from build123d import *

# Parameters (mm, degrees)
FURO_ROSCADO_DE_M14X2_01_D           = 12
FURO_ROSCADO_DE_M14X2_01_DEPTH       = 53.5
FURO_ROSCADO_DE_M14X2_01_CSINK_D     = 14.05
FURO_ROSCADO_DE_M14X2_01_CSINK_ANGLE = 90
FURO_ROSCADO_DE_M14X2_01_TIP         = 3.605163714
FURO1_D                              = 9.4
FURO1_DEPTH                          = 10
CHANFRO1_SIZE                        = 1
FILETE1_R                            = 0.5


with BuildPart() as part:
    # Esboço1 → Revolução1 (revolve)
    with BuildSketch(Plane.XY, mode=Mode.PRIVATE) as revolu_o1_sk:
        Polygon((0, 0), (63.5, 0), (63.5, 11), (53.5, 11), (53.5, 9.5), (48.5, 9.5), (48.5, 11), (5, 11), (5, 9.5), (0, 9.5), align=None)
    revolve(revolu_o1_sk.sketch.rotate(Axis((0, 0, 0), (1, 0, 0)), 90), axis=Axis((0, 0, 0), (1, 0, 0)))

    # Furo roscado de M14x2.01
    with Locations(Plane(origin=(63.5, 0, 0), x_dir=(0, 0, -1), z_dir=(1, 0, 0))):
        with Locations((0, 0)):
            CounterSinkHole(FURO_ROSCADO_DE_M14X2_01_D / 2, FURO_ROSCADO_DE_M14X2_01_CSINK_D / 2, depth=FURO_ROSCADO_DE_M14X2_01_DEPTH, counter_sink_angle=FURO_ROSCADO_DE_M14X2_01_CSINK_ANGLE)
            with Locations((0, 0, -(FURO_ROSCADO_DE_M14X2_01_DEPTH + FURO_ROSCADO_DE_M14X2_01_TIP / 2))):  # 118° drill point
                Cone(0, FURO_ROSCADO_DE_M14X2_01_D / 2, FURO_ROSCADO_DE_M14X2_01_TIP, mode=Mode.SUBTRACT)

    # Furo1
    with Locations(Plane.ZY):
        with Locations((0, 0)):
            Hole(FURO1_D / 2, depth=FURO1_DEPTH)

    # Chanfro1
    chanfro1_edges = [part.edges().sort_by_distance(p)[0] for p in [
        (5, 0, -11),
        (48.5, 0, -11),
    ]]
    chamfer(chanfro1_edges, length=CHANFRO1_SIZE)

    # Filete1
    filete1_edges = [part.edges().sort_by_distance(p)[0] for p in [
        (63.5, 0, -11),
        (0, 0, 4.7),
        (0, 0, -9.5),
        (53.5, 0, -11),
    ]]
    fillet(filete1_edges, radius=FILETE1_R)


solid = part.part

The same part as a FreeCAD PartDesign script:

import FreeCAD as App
import Part
import Sketcher
from FreeCAD import Vector
Q = App.Units.Quantity


def edges_at(feature, points):
    """Names of the edges that pass closest to the given points."""
    edges = feature.Shape.Edges
    near = lambda p: min(range(len(edges)), key=lambda i: edges[i].distToShape(Part.Vertex(*p))[0])
    return sorted({f"Edge{near(p) + 1}" for p in points})

doc = App.newDocument("Part")
body = doc.addObject("PartDesign::Body", "Body")

sketch1 = body.newObject("Sketcher::SketchObject", "Sketch")
sketch1.AttachmentSupport = (doc.getObject("XY_Plane"), [""])
sketch1.MapMode = "FlatFace"
sketch1.addGeometry([
    Part.LineSegment(Vector(0, 0, 0), Vector(63.5, 0, 0)),
    Part.LineSegment(Vector(63.5, 0, 0), Vector(63.5, 11, 0)),
    Part.LineSegment(Vector(63.5, 11, 0), Vector(53.5, 11, 0)),
    Part.LineSegment(Vector(53.5, 11, 0), Vector(53.5, 9.5, 0)),
    Part.LineSegment(Vector(53.5, 9.5, 0), Vector(48.5, 9.5, 0)),
    Part.LineSegment(Vector(48.5, 9.5, 0), Vector(48.5, 11, 0)),
    Part.LineSegment(Vector(48.5, 11, 0), Vector(5, 11, 0)),
    Part.LineSegment(Vector(5, 11, 0), Vector(5, 9.5, 0)),
    Part.LineSegment(Vector(5, 9.5, 0), Vector(0, 9.5, 0)),
    Part.LineSegment(Vector(0, 9.5, 0), Vector(0, 0, 0)),
], False)
sketch1.addConstraint([
    Sketcher.Constraint("Coincident", 0, 2, 1, 1),
    Sketcher.Constraint("Coincident", 1, 2, 2, 1),
    Sketcher.Constraint("Coincident", 2, 2, 3, 1),
    Sketcher.Constraint("Coincident", 3, 2, 4, 1),
    Sketcher.Constraint("Coincident", 4, 2, 5, 1),
    Sketcher.Constraint("Coincident", 5, 2, 6, 1),
    Sketcher.Constraint("Coincident", 6, 2, 7, 1),
    Sketcher.Constraint("Coincident", 7, 2, 8, 1),
    Sketcher.Constraint("Coincident", 8, 2, 9, 1),
    Sketcher.Constraint("Coincident", 9, 2, 0, 1),
    Sketcher.Constraint("Horizontal", 0),
    Sketcher.Constraint("Vertical", 1),
    Sketcher.Constraint("Horizontal", 2),
    Sketcher.Constraint("Vertical", 3),
    Sketcher.Constraint("Horizontal", 4),
    Sketcher.Constraint("Vertical", 5),
    Sketcher.Constraint("Horizontal", 6),
    Sketcher.Constraint("Vertical", 7),
    Sketcher.Constraint("Horizontal", 8),
    Sketcher.Constraint("Vertical", 9),
    Sketcher.Constraint("Coincident", 9, 2, -1, 1),
    Sketcher.Constraint("Horizontal", 2, 2, 5, 2),
    Sketcher.Constraint("Horizontal", 4, 2, 7, 2),
    Sketcher.Constraint("Equal", 4, 8),
    Sketcher.Constraint("DistanceX", 2, 2, 2, 1, Q("10 mm")),
    Sketcher.Constraint("DistanceX", 4, 2, 4, 1, Q("5 mm")),
    Sketcher.Constraint("DistanceY", 1, 1, 1, 2, Q("11 mm")),
    Sketcher.Constraint("DistanceX", 0, 1, 0, 2, Q("63.5 mm")),
    Sketcher.Constraint("DistanceY", 3, 2, 3, 1, Q("1.5 mm")),
])
revolution = body.newObject("PartDesign::Revolution", "Revolution")
revolution.Profile = sketch1
revolution.ReferenceAxis = (sketch1, ["H_Axis"])
revolution.Angle = 360

sketch2 = body.newObject("Sketcher::SketchObject", "Sketch001")
sketch2.AttachmentSupport = (doc.getObject("YZ_Plane"), [""])
sketch2.MapMode = "FlatFace"
sketch2.AttachmentOffset = App.Placement(Vector(0, 0, 63.5), App.Rotation())
sketch2.addGeometry(Part.Circle(Vector(0, 0, 0), Vector(0, 0, 1), 6), False)
sketch2.addConstraint([
    Sketcher.Constraint("Coincident", 0, 3, -1, 1),
    Sketcher.Constraint("Diameter", 0, Q("12 mm")),
])
doc.recompute()
hole = body.newObject("PartDesign::Hole", "Hole")
hole.Profile = sketch2
hole.ThreadType = "None"
hole.Diameter = 12
hole.DepthType = "Dimension"
hole.Depth = 53.5
hole.DrillPoint = "Angled"
hole.DrillPointAngle = 118
hole.HoleCutType = "Countersink"
hole.HoleCutDiameter = 14.05
hole.HoleCutCountersinkAngle = 90

sketch3 = body.newObject("Sketcher::SketchObject", "Sketch002")
sketch3.AttachmentSupport = (doc.getObject("YZ_Plane"), [""])
sketch3.MapMode = "FlatFace"
sketch3.addGeometry(Part.Circle(Vector(0, 0, 0), Vector(0, 0, 1), 4.7), False)
sketch3.addConstraint([
    Sketcher.Constraint("Coincident", 0, 3, -1, 1),
    Sketcher.Constraint("Diameter", 0, Q("9.4 mm")),
])
doc.recompute()
hole2 = body.newObject("PartDesign::Hole", "Hole001")
hole2.Profile = sketch3
hole2.ThreadType = "None"
hole2.Diameter = 9.4
hole2.DepthType = "Dimension"
hole2.Depth = 10
hole2.DrillPoint = "Flat"
hole2.Reversed = True
doc.recompute()

chamfer = body.newObject("PartDesign::Chamfer", "Chamfer")
chamfer.Base = (hole2, edges_at(hole2, [(5, 0, -11), (48.5, 0, -11)]))
chamfer.Size = 1
doc.recompute()

fillet = body.newObject("PartDesign::Fillet", "Fillet")
fillet.Base = (chamfer, edges_at(chamfer, [
    (63.5, 0, -11),
    (0, 0, 4.7),
    (0, 0, -9.5),
    (53.5, 0, -11),
]))
fillet.Radius = 0.5

doc.recompute()
